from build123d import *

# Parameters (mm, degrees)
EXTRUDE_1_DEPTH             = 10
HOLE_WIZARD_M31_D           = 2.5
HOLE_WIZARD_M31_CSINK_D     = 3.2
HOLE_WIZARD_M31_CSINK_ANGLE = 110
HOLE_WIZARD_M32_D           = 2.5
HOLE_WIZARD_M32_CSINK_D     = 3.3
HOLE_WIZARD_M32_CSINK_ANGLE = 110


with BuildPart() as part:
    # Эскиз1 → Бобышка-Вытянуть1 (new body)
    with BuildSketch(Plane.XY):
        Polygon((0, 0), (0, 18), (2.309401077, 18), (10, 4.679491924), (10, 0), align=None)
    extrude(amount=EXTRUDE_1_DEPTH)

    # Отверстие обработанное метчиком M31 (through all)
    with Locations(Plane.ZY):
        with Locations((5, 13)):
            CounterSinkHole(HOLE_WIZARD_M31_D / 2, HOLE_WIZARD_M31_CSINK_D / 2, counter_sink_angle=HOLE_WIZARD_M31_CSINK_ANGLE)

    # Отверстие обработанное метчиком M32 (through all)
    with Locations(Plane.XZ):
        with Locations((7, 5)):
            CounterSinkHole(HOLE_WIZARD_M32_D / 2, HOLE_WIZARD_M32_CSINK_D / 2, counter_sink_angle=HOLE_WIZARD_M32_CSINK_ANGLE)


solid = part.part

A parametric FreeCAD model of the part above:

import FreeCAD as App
import Part
import Sketcher
Q = App.Units.Quantity


def add_polygon(sketch, points):
    """Adds a closed chain of lines whose ends are joined by coincident constraints."""
    first, n = sketch.GeometryCount, len(points)
    for a, b in zip(points, points[1:] + points[:1]):
        sketch.addGeometry(Part.LineSegment(App.Vector(*a, 0), App.Vector(*b, 0)), False)
    for i in range(n):
        sketch.addConstraint(Sketcher.Constraint("Coincident", first + i, 2, first + (i + 1) % n, 1))

doc = App.newDocument("Part")
params = doc.addObject("Spreadsheet::Sheet", "Params")
for row, (alias, value) in enumerate([
    ("sketch1_width", "10 mm"),
    ("sketch1_height", "18 mm"),
    ("pad1_length", "10 mm"),
    ("sketch2_diameter", "2.5 mm"),
    ("hole_diameter", "2.5 mm"),
    ("hole_csink_diameter", "3.2 mm"),
    ("sketch3_diameter", "2.5 mm"),
    ("hole2_diameter", "2.5 mm"),
    ("hole2_csink_diameter", "3.3 mm"),
], start=1):
    params.set(f"A{row}", alias)
    params.set(f"B{row}", "=" + value)
    params.setAlias(f"B{row}", alias)

body = doc.addObject("PartDesign::Body", "Body")

sketch1 = body.newObject("Sketcher::SketchObject", "Sketch")
sketch1.AttachmentSupport = (doc.getObject("XY_Plane"), [""])
sketch1.MapMode = "FlatFace"
add_polygon(sketch1, [(0, 18), (0, 0), (10, 0), (10, 4.679492), (2.309401, 18)])
sketch1.addConstraint([
    Sketcher.Constraint("Vertical", 0),
    Sketcher.Constraint("Horizontal", 1),
    Sketcher.Constraint("Vertical", 2),
    Sketcher.Constraint("Horizontal", 4),
    Sketcher.Constraint("Coincident", 0, 2, -1, 1),
    Sketcher.Constraint("DistanceX", 1, 1, 1, 2, 10.0),
    Sketcher.Constraint("DistanceY", 0, 2, 0, 1, 18.0),
    Sketcher.Constraint("Angle", 3, Q("120 deg")),
    Sketcher.Constraint("DistanceX", 4, 2, 4, 1, 2.309401),
])
sketch1.setExpression("Constraints[10]", "Params.sketch1_width")
sketch1.setExpression("Constraints[11]", "Params.sketch1_height")
pad1 = body.newObject("PartDesign::Pad", "Pad")
pad1.Profile = sketch1
pad1.setExpression("Length", "Params.pad1_length")

sketch2 = body.newObject("Sketcher::SketchObject", "Sketch001")
sketch2.AttachmentSupport = (doc.getObject("YZ_Plane"), [""])
sketch2.MapMode = "FlatFace"
sketch2.addGeometry(Part.Circle(App.Vector(13, 5, 0), App.Vector(0, 0, 1), 1.25), False)
sketch2.addConstraint([
    Sketcher.Constraint("Diameter", 0, 2.5),
    Sketcher.Constraint("DistanceX", -1, 1, 0, 3, 13.0),
    Sketcher.Constraint("DistanceY", -1, 1, 0, 3, 5.0),
])
sketch2.setExpression("Constraints[0]", "Params.sketch2_diameter")
doc.recompute()
hole = body.newObject("PartDesign::Hole", "Hole")
hole.Profile = sketch2
hole.ThreadType = "None"
hole.setExpression("Diameter", "Params.hole_diameter")
hole.DepthType = "ThroughAll"
hole.HoleCutType = "Countersink"
hole.setExpression("HoleCutDiameter", "Params.hole_csink_diameter")
hole.HoleCutCountersinkAngle = 110
hole.Reversed = True

sketch3 = body.newObject("Sketcher::SketchObject", "Sketch002")
sketch3.AttachmentSupport = (doc.getObject("XZ_Plane"), [""])
sketch3.MapMode = "FlatFace"
sketch3.addGeometry(Part.Circle(App.Vector(7, 5, 0), App.Vector(0, 0, 1), 1.25), False)
sketch3.addConstraint([
    Sketcher.Constraint("Diameter", 0, 2.5),
    Sketcher.Constraint("DistanceX", -1, 1, 0, 3, 7.0),
    Sketcher.Constraint("DistanceY", -1, 1, 0, 3, 5.0),
])
sketch3.setExpression("Constraints[0]", "Params.sketch3_diameter")
doc.recompute()
hole2 = body.newObject("PartDesign::Hole", "Hole001")
hole2.Profile = sketch3
hole2.ThreadType = "None"
hole2.setExpression("Diameter", "Params.hole2_diameter")
hole2.DepthType = "ThroughAll"
hole2.HoleCutType = "Countersink"
hole2.setExpression("HoleCutDiameter", "Params.hole2_csink_diameter")
hole2.HoleCutCountersinkAngle = 110

doc.recompute()
